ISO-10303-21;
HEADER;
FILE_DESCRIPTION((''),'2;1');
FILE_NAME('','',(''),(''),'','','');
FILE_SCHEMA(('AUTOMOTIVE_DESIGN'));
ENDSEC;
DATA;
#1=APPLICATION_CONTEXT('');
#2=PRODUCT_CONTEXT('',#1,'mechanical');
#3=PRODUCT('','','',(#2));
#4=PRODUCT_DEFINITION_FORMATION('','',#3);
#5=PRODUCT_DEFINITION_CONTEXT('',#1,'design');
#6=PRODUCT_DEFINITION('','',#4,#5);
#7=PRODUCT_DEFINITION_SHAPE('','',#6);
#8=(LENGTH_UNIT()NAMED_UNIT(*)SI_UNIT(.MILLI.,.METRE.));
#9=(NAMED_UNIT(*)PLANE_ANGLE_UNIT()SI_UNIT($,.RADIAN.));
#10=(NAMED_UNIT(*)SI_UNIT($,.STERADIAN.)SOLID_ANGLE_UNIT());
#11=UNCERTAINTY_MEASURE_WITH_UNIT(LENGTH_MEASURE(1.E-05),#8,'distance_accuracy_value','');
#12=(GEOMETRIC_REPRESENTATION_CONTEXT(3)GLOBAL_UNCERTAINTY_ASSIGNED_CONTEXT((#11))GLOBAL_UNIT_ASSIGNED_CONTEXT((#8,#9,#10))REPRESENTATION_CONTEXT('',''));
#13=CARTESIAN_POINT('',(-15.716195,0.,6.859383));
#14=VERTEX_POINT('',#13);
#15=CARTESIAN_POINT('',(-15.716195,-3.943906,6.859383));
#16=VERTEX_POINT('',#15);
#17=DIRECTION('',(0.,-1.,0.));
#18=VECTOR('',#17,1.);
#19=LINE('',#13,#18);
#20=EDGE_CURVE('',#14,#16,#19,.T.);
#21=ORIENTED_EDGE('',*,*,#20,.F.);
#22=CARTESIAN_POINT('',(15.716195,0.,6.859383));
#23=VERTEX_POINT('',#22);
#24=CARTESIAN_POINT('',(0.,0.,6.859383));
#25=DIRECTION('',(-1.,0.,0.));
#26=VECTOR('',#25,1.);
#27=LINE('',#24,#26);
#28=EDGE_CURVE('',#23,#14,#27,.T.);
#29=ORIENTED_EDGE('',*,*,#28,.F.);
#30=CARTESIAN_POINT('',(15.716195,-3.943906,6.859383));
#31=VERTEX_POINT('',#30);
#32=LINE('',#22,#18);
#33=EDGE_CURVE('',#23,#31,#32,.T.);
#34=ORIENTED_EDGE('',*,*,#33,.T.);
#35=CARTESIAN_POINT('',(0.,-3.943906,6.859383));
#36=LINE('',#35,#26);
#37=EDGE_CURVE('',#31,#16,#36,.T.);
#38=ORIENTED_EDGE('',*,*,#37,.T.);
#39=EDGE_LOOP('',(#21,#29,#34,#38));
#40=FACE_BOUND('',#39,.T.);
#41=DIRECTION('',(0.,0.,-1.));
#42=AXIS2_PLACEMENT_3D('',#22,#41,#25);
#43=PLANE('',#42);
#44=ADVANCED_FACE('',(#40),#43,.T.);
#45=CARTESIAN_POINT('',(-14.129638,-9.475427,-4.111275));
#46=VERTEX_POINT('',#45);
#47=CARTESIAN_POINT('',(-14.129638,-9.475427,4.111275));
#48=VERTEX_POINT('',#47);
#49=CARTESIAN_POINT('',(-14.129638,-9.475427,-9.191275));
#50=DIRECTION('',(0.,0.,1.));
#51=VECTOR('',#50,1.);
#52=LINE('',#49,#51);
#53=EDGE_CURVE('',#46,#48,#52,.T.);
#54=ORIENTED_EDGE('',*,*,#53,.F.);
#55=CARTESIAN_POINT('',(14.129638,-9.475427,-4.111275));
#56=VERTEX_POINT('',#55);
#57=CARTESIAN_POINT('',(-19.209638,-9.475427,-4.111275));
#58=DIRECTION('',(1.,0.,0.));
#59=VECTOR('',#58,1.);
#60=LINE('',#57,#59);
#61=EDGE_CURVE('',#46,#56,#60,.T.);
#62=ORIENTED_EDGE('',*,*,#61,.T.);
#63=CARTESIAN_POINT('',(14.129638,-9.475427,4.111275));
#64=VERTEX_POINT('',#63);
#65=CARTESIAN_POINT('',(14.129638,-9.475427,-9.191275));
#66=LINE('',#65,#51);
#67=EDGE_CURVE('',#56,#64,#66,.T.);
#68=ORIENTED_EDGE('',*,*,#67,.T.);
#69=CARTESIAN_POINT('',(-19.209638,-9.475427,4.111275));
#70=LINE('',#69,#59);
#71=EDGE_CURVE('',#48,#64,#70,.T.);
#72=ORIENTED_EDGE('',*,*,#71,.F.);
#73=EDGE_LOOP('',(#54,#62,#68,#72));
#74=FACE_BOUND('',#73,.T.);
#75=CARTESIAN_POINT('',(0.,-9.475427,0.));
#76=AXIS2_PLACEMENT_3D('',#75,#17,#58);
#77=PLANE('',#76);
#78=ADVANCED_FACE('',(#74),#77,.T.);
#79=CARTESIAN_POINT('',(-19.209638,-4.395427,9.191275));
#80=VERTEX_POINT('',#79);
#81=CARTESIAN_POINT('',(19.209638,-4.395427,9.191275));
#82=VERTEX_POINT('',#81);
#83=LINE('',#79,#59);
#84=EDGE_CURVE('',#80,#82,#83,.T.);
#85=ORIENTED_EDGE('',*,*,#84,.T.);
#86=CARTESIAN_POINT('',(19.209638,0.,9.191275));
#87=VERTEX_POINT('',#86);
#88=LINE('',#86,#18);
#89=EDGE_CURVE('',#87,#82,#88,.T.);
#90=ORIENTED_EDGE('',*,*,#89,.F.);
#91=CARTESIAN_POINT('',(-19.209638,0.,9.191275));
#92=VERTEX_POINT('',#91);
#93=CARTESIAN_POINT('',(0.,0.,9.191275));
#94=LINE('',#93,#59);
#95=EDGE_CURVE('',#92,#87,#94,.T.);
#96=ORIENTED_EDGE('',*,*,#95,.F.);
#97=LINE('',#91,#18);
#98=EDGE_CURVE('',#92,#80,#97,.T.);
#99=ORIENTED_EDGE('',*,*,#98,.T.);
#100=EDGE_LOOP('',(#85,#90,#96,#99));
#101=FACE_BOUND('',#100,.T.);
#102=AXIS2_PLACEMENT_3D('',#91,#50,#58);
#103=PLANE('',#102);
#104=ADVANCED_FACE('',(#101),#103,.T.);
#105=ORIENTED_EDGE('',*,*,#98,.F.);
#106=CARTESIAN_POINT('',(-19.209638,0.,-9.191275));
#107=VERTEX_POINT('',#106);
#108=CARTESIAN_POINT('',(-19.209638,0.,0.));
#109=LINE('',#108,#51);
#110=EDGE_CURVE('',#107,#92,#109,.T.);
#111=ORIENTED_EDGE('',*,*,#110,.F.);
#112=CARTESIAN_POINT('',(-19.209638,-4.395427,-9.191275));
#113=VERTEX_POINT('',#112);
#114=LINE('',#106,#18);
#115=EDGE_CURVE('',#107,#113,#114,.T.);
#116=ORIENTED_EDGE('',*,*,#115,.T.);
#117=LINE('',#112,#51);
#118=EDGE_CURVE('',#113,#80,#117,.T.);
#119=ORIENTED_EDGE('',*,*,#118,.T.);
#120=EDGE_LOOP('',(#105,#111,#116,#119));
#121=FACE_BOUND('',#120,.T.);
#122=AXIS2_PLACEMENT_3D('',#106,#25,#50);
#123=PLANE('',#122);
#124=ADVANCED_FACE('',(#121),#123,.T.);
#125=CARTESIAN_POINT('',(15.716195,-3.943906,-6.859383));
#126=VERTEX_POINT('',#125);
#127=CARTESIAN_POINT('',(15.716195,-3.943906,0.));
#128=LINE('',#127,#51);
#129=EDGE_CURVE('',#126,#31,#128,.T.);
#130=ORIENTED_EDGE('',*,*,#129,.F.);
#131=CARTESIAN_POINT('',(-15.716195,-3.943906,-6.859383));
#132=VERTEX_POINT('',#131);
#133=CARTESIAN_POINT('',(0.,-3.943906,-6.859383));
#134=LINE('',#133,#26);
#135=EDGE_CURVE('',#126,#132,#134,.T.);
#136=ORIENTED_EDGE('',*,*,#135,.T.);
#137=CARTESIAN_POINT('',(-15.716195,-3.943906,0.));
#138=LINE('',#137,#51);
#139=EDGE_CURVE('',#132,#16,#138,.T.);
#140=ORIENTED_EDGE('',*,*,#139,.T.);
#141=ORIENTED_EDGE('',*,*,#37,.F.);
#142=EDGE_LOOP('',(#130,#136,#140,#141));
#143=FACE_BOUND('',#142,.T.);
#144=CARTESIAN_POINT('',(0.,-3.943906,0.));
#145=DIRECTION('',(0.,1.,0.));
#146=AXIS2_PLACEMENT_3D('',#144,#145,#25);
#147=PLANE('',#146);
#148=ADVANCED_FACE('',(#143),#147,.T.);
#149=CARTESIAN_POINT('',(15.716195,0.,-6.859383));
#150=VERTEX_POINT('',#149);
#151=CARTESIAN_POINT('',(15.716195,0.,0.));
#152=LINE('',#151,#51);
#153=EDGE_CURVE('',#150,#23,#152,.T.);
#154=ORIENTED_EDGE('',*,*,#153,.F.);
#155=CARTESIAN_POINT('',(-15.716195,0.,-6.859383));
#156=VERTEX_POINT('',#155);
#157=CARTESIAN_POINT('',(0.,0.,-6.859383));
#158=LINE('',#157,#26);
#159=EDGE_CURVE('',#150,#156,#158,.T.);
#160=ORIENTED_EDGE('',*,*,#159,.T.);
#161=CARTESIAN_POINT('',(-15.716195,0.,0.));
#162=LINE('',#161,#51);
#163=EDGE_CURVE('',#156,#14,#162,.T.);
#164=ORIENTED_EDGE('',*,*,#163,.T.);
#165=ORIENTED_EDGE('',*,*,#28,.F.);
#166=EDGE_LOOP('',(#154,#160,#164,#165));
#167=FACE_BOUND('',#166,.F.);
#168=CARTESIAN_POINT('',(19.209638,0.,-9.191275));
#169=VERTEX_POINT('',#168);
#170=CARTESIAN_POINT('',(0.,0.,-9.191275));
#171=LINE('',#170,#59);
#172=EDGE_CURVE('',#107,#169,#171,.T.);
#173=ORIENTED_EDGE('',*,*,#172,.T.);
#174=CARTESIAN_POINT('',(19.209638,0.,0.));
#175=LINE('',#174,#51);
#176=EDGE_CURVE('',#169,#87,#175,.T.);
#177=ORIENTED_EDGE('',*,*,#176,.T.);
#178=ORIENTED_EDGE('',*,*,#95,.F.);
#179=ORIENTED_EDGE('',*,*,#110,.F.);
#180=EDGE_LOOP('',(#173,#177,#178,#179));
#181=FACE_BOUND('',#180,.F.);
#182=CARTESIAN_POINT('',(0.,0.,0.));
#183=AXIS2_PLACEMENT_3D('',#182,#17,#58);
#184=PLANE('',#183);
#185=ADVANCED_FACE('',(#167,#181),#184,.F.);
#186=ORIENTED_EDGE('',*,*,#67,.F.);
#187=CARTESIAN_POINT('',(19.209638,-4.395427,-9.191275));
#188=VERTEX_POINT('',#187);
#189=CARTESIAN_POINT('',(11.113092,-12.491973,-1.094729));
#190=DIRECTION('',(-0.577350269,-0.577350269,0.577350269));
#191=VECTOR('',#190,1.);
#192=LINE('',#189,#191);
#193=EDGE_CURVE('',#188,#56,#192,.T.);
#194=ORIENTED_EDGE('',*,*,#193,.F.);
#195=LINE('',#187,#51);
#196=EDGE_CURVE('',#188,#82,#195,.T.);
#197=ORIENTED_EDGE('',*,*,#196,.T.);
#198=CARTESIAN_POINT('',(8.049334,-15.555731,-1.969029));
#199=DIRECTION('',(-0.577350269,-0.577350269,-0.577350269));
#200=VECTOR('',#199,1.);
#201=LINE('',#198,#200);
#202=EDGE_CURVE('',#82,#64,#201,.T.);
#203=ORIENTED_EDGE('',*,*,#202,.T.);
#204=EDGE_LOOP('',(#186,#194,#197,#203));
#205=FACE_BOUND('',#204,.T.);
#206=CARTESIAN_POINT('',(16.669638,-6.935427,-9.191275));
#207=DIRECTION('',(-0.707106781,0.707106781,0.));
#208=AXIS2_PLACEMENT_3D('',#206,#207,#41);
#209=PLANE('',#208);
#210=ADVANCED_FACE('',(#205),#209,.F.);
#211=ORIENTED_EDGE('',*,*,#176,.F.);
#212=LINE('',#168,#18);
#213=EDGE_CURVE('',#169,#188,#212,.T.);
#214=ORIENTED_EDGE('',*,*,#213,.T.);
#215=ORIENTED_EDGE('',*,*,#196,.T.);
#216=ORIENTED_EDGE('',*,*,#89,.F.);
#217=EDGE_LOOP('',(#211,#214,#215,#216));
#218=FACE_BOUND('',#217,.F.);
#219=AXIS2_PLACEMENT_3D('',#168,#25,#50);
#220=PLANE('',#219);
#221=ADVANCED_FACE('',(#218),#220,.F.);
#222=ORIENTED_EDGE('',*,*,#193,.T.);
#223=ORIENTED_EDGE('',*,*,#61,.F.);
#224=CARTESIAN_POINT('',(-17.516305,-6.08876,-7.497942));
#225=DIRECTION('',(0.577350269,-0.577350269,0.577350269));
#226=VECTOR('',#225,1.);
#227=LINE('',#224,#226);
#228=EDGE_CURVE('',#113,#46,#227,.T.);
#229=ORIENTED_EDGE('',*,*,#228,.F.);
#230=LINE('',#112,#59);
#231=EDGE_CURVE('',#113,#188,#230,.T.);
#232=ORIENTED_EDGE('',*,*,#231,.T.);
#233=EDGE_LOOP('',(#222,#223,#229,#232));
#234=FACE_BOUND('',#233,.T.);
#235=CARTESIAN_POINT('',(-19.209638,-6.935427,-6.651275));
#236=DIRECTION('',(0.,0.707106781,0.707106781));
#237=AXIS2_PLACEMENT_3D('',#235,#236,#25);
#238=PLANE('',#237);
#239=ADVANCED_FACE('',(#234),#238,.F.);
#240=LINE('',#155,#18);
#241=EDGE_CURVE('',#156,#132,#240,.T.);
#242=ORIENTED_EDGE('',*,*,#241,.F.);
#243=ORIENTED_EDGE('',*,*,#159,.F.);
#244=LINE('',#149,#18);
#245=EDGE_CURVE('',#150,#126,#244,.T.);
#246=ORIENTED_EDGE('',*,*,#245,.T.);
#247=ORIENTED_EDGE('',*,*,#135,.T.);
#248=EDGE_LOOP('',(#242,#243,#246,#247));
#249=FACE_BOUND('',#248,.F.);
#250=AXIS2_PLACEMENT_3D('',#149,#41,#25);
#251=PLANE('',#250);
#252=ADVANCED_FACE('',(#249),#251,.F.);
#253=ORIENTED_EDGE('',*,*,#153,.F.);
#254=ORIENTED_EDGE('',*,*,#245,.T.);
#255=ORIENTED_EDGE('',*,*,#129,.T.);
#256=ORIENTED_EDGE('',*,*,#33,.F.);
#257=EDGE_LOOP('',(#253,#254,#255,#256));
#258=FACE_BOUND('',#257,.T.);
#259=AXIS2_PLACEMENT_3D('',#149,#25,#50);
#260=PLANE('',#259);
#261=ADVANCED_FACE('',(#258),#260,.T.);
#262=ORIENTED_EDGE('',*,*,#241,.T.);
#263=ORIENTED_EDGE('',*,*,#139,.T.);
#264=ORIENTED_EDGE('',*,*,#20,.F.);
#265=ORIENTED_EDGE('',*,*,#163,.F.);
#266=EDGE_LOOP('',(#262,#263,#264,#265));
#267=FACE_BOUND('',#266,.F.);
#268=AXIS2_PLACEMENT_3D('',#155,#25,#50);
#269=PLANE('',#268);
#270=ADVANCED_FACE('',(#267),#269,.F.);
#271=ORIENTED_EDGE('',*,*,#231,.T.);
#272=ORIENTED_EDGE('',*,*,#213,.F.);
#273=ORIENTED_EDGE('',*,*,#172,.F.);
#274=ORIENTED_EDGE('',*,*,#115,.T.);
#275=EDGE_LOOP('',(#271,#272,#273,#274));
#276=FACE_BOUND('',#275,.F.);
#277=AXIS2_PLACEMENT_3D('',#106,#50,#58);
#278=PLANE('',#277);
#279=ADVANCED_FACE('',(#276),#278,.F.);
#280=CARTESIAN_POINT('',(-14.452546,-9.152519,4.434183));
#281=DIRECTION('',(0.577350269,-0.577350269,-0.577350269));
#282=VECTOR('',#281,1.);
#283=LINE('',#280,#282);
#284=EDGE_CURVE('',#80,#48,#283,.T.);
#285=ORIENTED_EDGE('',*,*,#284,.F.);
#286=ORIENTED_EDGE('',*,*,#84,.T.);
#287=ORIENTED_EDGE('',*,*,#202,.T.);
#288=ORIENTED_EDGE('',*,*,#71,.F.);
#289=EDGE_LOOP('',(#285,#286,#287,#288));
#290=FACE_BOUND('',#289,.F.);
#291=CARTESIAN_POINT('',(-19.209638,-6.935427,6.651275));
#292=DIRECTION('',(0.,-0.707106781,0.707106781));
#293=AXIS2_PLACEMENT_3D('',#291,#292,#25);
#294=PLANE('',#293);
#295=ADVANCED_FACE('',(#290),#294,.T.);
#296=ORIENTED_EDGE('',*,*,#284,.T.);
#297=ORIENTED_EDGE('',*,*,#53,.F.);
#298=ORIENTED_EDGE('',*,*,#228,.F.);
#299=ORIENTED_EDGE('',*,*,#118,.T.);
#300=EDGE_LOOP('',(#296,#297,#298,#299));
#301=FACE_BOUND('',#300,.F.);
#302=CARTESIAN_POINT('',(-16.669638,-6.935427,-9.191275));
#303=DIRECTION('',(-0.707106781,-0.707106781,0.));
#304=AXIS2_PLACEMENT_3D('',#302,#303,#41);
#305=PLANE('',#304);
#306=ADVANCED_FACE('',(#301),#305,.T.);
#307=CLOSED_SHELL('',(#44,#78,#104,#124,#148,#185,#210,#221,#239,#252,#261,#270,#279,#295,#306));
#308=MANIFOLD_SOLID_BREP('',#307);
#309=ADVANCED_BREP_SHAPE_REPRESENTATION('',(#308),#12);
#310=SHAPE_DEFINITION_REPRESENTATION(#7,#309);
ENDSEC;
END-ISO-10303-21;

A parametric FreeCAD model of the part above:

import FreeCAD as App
import Part
import Sketcher
from FreeCAD import Vector


def edges_at(feature, points):
    """Names of the edges that pass closest to the given points."""
    edges = feature.Shape.Edges
    near = lambda p: min(range(len(edges)), key=lambda i: edges[i].distToShape(Part.Vertex(*p))[0])
    return sorted({f"Edge{near(p) + 1}" for p in points})

doc = App.newDocument("Part")
params = doc.addObject("Spreadsheet::Sheet", "Params")
for row, (alias, value) in enumerate([
    ("pad1_length", "9.475427 mm"),
    ("chamfer_size", "0.2 in"),
    ("pocket1_length", "3.943906 mm"),
], start=1):
    params.set(f"A{row}", alias)
    params.set(f"B{row}", "=" + value)
    params.setAlias(f"B{row}", alias)

body = doc.addObject("PartDesign::Body", "Body")

# Sketch on XZ plane
sketch1 = body.newObject("Sketcher::SketchObject", "Sketch")
sketch1.AttachmentSupport = (doc.getObject("XZ_Plane"), [""])
sketch1.MapMode = "FlatFace"
sketch1.addGeometry([
    Part.LineSegment(Vector(-19, 9, 0), Vector(-19, -9, 0)),
    Part.LineSegment(Vector(-19, -9, 0), Vector(19, -9, 0)),
    Part.LineSegment(Vector(19, -9, 0), Vector(19, 9, 0)),
    Part.LineSegment(Vector(19, 9, 0), Vector(-19, 9, 0)),
], False)
sketch1.addConstraint([
    Sketcher.Constraint("Coincident", 0, 2, 1, 1),
    Sketcher.Constraint("Coincident", 1, 2, 2, 1),
    Sketcher.Constraint("Coincident", 2, 2, 3, 1),
    Sketcher.Constraint("Coincident", 3, 2, 0, 1),
    Sketcher.Constraint("Vertical", 0),
    Sketcher.Constraint("Horizontal", 1),
    Sketcher.Constraint("Vertical", 2),
    Sketcher.Constraint("Horizontal", 3),
    Sketcher.Constraint("Symmetric", 0, 2, 2, 2, -1, 1),
    Sketcher.Constraint("DistanceY", 0, 2, 0, 1, 18.38255),
    Sketcher.Constraint("DistanceX", 1, 1, 1, 2, 38.419276),
])
pad1 = body.newObject("PartDesign::Pad", "Pad")
pad1.Profile = sketch1
pad1.setExpression("Length", "Params.pad1_length")
doc.recompute()

chamfer = body.newObject("PartDesign::Chamfer", "Chamfer")
chamfer.Base = (pad1, edges_at(pad1, [
    (19.21, -9.475, 0),
    (0, -9.475, 9.191),
    (-19.21, -9.475, 0),
    (0, -9.475, -9.191),
]))
chamfer.setExpression("Size", "Params.chamfer_size")

# Sketch on XZ plane
sketch2 = body.newObject("Sketcher::SketchObject", "Sketch001")
sketch2.AttachmentSupport = (doc.getObject("XZ_Plane"), [""])
sketch2.MapMode = "FlatFace"
sketch2.addGeometry([
    Part.LineSegment(Vector(16, 7, 0), Vector(16, -7, 0)),
    Part.LineSegment(Vector(16, -7, 0), Vector(-16, -7, 0)),
    Part.LineSegment(Vector(-16, -7, 0), Vector(-16, 7, 0)),
    Part.LineSegment(Vector(-16, 7, 0), Vector(16, 7, 0)),
], False)
sketch2.addConstraint([
    Sketcher.Constraint("Coincident", 0, 2, 1, 1),
    Sketcher.Constraint("Coincident", 1, 2, 2, 1),
    Sketcher.Constraint("Coincident", 2, 2, 3, 1),
    Sketcher.Constraint("Coincident", 3, 2, 0, 1),
    Sketcher.Constraint("Vertical", 0),
    Sketcher.Constraint("Horizontal", 1),
    Sketcher.Constraint("Vertical", 2),
    Sketcher.Constraint("Horizontal", 3),
    Sketcher.Constraint("Symmetric", 0, 2, 2, 2, -1, 1),
    Sketcher.Constraint("DistanceX", 1, 2, 1, 1, 31.43239),
    Sketcher.Constraint("DistanceY", 0, 2, 0, 1, 13.718766),
])
pocket1 = body.newObject("PartDesign::Pocket", "Pocket")
pocket1.Profile = sketch2
pocket1.setExpression("Length", "Params.pocket1_length")
pocket1.Reversed = True

doc.recompute()
